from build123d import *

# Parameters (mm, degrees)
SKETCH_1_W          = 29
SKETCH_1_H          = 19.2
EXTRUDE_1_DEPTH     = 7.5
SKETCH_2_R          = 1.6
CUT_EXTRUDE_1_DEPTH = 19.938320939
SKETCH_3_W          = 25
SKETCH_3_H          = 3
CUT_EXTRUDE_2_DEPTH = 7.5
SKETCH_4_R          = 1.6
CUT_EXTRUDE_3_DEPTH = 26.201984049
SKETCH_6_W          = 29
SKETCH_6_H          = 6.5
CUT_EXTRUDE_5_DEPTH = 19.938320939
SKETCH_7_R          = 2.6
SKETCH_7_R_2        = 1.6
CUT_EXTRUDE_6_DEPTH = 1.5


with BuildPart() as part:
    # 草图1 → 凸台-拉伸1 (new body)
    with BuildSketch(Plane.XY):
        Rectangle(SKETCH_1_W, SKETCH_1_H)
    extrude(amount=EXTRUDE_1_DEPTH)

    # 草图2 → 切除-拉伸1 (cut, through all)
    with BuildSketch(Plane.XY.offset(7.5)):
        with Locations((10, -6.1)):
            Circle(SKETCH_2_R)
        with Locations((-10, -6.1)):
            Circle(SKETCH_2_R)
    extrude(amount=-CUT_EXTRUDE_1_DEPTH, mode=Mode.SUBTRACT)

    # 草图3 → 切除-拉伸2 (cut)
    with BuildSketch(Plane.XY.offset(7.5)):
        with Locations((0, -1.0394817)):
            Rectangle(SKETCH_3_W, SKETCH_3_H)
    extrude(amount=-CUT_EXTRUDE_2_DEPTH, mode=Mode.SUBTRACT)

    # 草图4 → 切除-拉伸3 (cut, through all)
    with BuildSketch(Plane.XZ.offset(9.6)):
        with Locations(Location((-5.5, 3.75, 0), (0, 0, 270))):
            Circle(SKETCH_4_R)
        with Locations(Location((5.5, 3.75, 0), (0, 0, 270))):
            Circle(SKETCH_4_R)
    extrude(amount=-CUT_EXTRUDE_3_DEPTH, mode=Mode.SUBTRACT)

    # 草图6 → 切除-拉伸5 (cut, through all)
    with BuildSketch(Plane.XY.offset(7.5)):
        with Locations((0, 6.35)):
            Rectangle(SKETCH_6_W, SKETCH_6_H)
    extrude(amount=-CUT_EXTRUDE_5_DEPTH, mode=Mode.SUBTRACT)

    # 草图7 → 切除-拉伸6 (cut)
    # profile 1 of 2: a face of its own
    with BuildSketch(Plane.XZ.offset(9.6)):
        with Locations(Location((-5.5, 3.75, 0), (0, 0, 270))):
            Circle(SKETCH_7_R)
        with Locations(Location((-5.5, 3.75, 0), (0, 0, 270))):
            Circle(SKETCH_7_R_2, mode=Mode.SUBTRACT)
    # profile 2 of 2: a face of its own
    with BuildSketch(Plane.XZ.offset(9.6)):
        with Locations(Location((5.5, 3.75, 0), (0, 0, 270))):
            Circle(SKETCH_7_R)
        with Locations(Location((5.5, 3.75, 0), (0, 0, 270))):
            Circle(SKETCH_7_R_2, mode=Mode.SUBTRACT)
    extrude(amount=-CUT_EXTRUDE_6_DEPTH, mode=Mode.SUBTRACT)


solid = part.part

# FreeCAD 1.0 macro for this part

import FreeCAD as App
import Part
import Sketcher

V = App.Vector


def add_polygon(sketch, points):
    """Adds a closed chain of lines whose ends are joined by coincident constraints."""
    first, n = sketch.GeometryCount, len(points)
    for a, b in zip(points, points[1:] + points[:1]):
        sketch.addGeometry(Part.LineSegment(App.Vector(*a, 0), App.Vector(*b, 0)), False)
    for i in range(n):
        sketch.addConstraint(Sketcher.Constraint("Coincident", first + i, 2, first + (i + 1) % n, 1))

doc = App.newDocument("Part")
params = doc.addObject("Spreadsheet::Sheet", "Params")
for row, (alias, value) in enumerate([
    ("sketch1_width", "29 mm"),
    ("sketch1_height", "19.2 mm"),
    ("pad1_length", "7.5 mm"),
    ("sketch2_diameter", "3.2 mm"),
    ("sketch3_width", "25 mm"),
    ("sketch3_height", "3 mm"),
    ("pocket2_length", "7.5 mm"),
    ("sketch4_diameter", "3.2 mm"),
    ("sketch5_width", "29 mm"),
    ("sketch5_height", "6.5 mm"),
    ("sketch6_diameter", "5.2 mm"),
    ("sketch6_diameter2", "3.2 mm"),
    ("pocket5_length", "1.5 mm"),
], start=1):
    params.set(f"A{row}", alias)
    params.set(f"B{row}", "=" + value)
    params.setAlias(f"B{row}", alias)

body = doc.addObject("PartDesign::Body", "Body")

# Sketch on XY plane
sketch1 = body.newObject("Sketcher::SketchObject", "Sketch")
sketch1.AttachmentSupport = (doc.getObject("XY_Plane"), [""])
sketch1.MapMode = "FlatFace"
add_polygon(sketch1, [(-14.5, 9.6), (-14.5, -9.6), (14.5, -9.6), (14.5, 9.6)])  # lines 0-3
sketch1.addConstraint([
    Sketcher.Constraint("Vertical", 0),
    Sketcher.Constraint("Horizontal", 1),
    Sketcher.Constraint("Vertical", 2),
    Sketcher.Constraint("Horizontal", 3),
    Sketcher.Constraint("Symmetric", 0, 2, 2, 2, -1, 1),
    Sketcher.Constraint("DistanceX", 1, 1, 1, 2, 29.0),
    Sketcher.Constraint("DistanceY", 0, 2, 0, 1, 19.2),
])
sketch1.setExpression("Constraints[9]", "Params.sketch1_width")
sketch1.setExpression("Constraints[10]", "Params.sketch1_height")
pad1 = body.newObject("PartDesign::Pad", "Pad")
pad1.Profile = sketch1
pad1.setExpression("Length", "Params.pad1_length")

# Sketch on XY plane
sketch2 = body.newObject("Sketcher::SketchObject", "Sketch001")
sketch2.AttachmentSupport = (doc.getObject("XY_Plane"), [""])
sketch2.MapMode = "FlatFace"
sketch2.AttachmentOffset = App.Placement(V(0, 0, 7.5), App.Rotation())
sketch2.addGeometry([
    Part.Circle(V(10, -6.1, 0), V(0, 0, 1), 1.6),
    Part.Circle(V(-10, -6.1, 0), V(0, 0, 1), 1.6),
], False)
sketch2.addConstraint([
    Sketcher.Constraint("Equal", 0, 1),
    Sketcher.Constraint("Symmetric", 0, 3, 1, 3, -2),
    Sketcher.Constraint("Diameter", 0, 3.2),
    Sketcher.Constraint("DistanceX", -1, 1, 0, 3, 10.0),
    Sketcher.Constraint("DistanceY", 0, 3, -1, 1, 6.1),
])
sketch2.setExpression("Constraints[2]", "Params.sketch2_diameter")
pocket1 = body.newObject("PartDesign::Pocket", "Pocket")
pocket1.Profile = sketch2
pocket1.Type = "ThroughAll"

# Sketch on XY plane
sketch3 = body.newObject("Sketcher::SketchObject", "Sketch002")
sketch3.AttachmentSupport = (doc.getObject("XY_Plane"), [""])
sketch3.MapMode = "FlatFace"
sketch3.AttachmentOffset = App.Placement(V(0, 0, 7.5), App.Rotation())
add_polygon(sketch3, [(-12.5, 0.460518), (-12.5, -2.539482), (12.5, -2.539482), (12.5, 0.460518)])  # lines 0-3
sketch3.addConstraint([
    Sketcher.Constraint("Vertical", 0),
    Sketcher.Constraint("Horizontal", 1),
    Sketcher.Constraint("Vertical", 2),
    Sketcher.Constraint("Horizontal", 3),
    Sketcher.Constraint("DistanceX", 1, 1, 1, 2, 25.0),
    Sketcher.Constraint("DistanceY", 0, 2, 0, 1, 3.0),
    Sketcher.Constraint("DistanceX", 0, 2, -1, 1, 12.5),
    Sketcher.Constraint("DistanceY", 0, 2, -1, 1, 2.539482),
])
sketch3.setExpression("Constraints[8]", "Params.sketch3_width")
sketch3.setExpression("Constraints[9]", "Params.sketch3_height")
pocket2 = body.newObject("PartDesign::Pocket", "Pocket001")
pocket2.Profile = sketch3
pocket2.setExpression("Length", "Params.pocket2_length")

# Sketch on XZ plane
sketch4 = body.newObject("Sketcher::SketchObject", "Sketch003")
sketch4.AttachmentSupport = (doc.getObject("XZ_Plane"), [""])
sketch4.MapMode = "FlatFace"
sketch4.AttachmentOffset = App.Placement(V(0, 0, 9.6), App.Rotation())
sketch4.addGeometry([
    Part.Circle(V(-5.5, 3.75, 0), V(0, 0, 1), 1.6),
    Part.Circle(V(5.5, 3.75, 0), V(0, 0, 1), 1.6),
], False)
sketch4.addConstraint([
    Sketcher.Constraint("Equal", 0, 1),
    Sketcher.Constraint("Symmetric", 0, 3, 1, 3, -2),
    Sketcher.Constraint("Diameter", 0, 3.2),
    Sketcher.Constraint("DistanceX", 0, 3, 1, 3, 11.0),
    Sketcher.Constraint("DistanceY", -1, 1, 0, 3, 3.75),
])
sketch4.setExpression("Constraints[2]", "Params.sketch4_diameter")
pocket3 = body.newObject("PartDesign::Pocket", "Pocket002")
pocket3.Profile = sketch4
pocket3.Type = "ThroughAll"

# Sketch on XY plane
sketch5 = body.newObject("Sketcher::SketchObject", "Sketch004")
sketch5.AttachmentSupport = (doc.getObject("XY_Plane"), [""])
sketch5.MapMode = "FlatFace"
sketch5.AttachmentOffset = App.Placement(V(0, 0, 7.5), App.Rotation())
add_polygon(sketch5, [(-14.5, 9.6), (-14.5, 3.1), (14.5, 3.1), (14.5, 9.6)])  # lines 0-3
sketch5.addConstraint([
    Sketcher.Constraint("Vertical", 0),
    Sketcher.Constraint("Horizontal", 1),
    Sketcher.Constraint("Vertical", 2),
    Sketcher.Constraint("Horizontal", 3),
    Sketcher.Constraint("DistanceX", 1, 1, 1, 2, 29.0),
    Sketcher.Constraint("DistanceY", 0, 2, 0, 1, 6.5),
    Sketcher.Constraint("DistanceX", 0, 2, -1, 1, 14.5),
    Sketcher.Constraint("DistanceY", -1, 1, 0, 2, 3.1),
])
sketch5.setExpression("Constraints[8]", "Params.sketch5_width")
sketch5.setExpression("Constraints[9]", "Params.sketch5_height")
pocket4 = body.newObject("PartDesign::Pocket", "Pocket003")
pocket4.Profile = sketch5
pocket4.Type = "ThroughAll"

# Sketch on XZ plane
sketch6 = body.newObject("Sketcher::SketchObject", "Sketch005")
sketch6.AttachmentSupport = (doc.getObject("XZ_Plane"), [""])
sketch6.MapMode = "FlatFace"
sketch6.AttachmentOffset = App.Placement(V(0, 0, 9.6), App.Rotation())
sketch6.addGeometry([
    Part.Circle(V(-5.5, 3.75, 0), V(0, 0, 1), 2.6),
    Part.Circle(V(-5.5, 3.75, 0), V(0, 0, 1), 1.6),
    Part.Circle(V(5.5, 3.75, 0), V(0, 0, 1), 2.6),
    Part.Circle(V(5.5, 3.75, 0), V(0, 0, 1), 1.6),
], False)
sketch6.addConstraint([
    Sketcher.Constraint("Coincident", 1, 3, 0, 3),
    Sketcher.Constraint("Coincident", 3, 3, 2, 3),
    Sketcher.Constraint("Equal", 0, 2),
    Sketcher.Constraint("Equal", 1, 3),
    Sketcher.Constraint("Symmetric", 0, 3, 2, 3, -2),
    Sketcher.Constraint("Diameter", 0, 5.2),
    Sketcher.Constraint("Diameter", 1, 3.2),
    Sketcher.Constraint("DistanceX", 0, 3, 2, 3, 11.0),
    Sketcher.Constraint("DistanceY", -1, 1, 0, 3, 3.75),
])
sketch6.setExpression("Constraints[5]", "Params.sketch6_diameter")
sketch6.setExpression("Constraints[6]", "Params.sketch6_diameter2")
pocket5 = body.newObject("PartDesign::Pocket", "Pocket004")
pocket5.Profile = sketch6
pocket5.setExpression("Length", "Params.pocket5_length")

doc.recompute()
